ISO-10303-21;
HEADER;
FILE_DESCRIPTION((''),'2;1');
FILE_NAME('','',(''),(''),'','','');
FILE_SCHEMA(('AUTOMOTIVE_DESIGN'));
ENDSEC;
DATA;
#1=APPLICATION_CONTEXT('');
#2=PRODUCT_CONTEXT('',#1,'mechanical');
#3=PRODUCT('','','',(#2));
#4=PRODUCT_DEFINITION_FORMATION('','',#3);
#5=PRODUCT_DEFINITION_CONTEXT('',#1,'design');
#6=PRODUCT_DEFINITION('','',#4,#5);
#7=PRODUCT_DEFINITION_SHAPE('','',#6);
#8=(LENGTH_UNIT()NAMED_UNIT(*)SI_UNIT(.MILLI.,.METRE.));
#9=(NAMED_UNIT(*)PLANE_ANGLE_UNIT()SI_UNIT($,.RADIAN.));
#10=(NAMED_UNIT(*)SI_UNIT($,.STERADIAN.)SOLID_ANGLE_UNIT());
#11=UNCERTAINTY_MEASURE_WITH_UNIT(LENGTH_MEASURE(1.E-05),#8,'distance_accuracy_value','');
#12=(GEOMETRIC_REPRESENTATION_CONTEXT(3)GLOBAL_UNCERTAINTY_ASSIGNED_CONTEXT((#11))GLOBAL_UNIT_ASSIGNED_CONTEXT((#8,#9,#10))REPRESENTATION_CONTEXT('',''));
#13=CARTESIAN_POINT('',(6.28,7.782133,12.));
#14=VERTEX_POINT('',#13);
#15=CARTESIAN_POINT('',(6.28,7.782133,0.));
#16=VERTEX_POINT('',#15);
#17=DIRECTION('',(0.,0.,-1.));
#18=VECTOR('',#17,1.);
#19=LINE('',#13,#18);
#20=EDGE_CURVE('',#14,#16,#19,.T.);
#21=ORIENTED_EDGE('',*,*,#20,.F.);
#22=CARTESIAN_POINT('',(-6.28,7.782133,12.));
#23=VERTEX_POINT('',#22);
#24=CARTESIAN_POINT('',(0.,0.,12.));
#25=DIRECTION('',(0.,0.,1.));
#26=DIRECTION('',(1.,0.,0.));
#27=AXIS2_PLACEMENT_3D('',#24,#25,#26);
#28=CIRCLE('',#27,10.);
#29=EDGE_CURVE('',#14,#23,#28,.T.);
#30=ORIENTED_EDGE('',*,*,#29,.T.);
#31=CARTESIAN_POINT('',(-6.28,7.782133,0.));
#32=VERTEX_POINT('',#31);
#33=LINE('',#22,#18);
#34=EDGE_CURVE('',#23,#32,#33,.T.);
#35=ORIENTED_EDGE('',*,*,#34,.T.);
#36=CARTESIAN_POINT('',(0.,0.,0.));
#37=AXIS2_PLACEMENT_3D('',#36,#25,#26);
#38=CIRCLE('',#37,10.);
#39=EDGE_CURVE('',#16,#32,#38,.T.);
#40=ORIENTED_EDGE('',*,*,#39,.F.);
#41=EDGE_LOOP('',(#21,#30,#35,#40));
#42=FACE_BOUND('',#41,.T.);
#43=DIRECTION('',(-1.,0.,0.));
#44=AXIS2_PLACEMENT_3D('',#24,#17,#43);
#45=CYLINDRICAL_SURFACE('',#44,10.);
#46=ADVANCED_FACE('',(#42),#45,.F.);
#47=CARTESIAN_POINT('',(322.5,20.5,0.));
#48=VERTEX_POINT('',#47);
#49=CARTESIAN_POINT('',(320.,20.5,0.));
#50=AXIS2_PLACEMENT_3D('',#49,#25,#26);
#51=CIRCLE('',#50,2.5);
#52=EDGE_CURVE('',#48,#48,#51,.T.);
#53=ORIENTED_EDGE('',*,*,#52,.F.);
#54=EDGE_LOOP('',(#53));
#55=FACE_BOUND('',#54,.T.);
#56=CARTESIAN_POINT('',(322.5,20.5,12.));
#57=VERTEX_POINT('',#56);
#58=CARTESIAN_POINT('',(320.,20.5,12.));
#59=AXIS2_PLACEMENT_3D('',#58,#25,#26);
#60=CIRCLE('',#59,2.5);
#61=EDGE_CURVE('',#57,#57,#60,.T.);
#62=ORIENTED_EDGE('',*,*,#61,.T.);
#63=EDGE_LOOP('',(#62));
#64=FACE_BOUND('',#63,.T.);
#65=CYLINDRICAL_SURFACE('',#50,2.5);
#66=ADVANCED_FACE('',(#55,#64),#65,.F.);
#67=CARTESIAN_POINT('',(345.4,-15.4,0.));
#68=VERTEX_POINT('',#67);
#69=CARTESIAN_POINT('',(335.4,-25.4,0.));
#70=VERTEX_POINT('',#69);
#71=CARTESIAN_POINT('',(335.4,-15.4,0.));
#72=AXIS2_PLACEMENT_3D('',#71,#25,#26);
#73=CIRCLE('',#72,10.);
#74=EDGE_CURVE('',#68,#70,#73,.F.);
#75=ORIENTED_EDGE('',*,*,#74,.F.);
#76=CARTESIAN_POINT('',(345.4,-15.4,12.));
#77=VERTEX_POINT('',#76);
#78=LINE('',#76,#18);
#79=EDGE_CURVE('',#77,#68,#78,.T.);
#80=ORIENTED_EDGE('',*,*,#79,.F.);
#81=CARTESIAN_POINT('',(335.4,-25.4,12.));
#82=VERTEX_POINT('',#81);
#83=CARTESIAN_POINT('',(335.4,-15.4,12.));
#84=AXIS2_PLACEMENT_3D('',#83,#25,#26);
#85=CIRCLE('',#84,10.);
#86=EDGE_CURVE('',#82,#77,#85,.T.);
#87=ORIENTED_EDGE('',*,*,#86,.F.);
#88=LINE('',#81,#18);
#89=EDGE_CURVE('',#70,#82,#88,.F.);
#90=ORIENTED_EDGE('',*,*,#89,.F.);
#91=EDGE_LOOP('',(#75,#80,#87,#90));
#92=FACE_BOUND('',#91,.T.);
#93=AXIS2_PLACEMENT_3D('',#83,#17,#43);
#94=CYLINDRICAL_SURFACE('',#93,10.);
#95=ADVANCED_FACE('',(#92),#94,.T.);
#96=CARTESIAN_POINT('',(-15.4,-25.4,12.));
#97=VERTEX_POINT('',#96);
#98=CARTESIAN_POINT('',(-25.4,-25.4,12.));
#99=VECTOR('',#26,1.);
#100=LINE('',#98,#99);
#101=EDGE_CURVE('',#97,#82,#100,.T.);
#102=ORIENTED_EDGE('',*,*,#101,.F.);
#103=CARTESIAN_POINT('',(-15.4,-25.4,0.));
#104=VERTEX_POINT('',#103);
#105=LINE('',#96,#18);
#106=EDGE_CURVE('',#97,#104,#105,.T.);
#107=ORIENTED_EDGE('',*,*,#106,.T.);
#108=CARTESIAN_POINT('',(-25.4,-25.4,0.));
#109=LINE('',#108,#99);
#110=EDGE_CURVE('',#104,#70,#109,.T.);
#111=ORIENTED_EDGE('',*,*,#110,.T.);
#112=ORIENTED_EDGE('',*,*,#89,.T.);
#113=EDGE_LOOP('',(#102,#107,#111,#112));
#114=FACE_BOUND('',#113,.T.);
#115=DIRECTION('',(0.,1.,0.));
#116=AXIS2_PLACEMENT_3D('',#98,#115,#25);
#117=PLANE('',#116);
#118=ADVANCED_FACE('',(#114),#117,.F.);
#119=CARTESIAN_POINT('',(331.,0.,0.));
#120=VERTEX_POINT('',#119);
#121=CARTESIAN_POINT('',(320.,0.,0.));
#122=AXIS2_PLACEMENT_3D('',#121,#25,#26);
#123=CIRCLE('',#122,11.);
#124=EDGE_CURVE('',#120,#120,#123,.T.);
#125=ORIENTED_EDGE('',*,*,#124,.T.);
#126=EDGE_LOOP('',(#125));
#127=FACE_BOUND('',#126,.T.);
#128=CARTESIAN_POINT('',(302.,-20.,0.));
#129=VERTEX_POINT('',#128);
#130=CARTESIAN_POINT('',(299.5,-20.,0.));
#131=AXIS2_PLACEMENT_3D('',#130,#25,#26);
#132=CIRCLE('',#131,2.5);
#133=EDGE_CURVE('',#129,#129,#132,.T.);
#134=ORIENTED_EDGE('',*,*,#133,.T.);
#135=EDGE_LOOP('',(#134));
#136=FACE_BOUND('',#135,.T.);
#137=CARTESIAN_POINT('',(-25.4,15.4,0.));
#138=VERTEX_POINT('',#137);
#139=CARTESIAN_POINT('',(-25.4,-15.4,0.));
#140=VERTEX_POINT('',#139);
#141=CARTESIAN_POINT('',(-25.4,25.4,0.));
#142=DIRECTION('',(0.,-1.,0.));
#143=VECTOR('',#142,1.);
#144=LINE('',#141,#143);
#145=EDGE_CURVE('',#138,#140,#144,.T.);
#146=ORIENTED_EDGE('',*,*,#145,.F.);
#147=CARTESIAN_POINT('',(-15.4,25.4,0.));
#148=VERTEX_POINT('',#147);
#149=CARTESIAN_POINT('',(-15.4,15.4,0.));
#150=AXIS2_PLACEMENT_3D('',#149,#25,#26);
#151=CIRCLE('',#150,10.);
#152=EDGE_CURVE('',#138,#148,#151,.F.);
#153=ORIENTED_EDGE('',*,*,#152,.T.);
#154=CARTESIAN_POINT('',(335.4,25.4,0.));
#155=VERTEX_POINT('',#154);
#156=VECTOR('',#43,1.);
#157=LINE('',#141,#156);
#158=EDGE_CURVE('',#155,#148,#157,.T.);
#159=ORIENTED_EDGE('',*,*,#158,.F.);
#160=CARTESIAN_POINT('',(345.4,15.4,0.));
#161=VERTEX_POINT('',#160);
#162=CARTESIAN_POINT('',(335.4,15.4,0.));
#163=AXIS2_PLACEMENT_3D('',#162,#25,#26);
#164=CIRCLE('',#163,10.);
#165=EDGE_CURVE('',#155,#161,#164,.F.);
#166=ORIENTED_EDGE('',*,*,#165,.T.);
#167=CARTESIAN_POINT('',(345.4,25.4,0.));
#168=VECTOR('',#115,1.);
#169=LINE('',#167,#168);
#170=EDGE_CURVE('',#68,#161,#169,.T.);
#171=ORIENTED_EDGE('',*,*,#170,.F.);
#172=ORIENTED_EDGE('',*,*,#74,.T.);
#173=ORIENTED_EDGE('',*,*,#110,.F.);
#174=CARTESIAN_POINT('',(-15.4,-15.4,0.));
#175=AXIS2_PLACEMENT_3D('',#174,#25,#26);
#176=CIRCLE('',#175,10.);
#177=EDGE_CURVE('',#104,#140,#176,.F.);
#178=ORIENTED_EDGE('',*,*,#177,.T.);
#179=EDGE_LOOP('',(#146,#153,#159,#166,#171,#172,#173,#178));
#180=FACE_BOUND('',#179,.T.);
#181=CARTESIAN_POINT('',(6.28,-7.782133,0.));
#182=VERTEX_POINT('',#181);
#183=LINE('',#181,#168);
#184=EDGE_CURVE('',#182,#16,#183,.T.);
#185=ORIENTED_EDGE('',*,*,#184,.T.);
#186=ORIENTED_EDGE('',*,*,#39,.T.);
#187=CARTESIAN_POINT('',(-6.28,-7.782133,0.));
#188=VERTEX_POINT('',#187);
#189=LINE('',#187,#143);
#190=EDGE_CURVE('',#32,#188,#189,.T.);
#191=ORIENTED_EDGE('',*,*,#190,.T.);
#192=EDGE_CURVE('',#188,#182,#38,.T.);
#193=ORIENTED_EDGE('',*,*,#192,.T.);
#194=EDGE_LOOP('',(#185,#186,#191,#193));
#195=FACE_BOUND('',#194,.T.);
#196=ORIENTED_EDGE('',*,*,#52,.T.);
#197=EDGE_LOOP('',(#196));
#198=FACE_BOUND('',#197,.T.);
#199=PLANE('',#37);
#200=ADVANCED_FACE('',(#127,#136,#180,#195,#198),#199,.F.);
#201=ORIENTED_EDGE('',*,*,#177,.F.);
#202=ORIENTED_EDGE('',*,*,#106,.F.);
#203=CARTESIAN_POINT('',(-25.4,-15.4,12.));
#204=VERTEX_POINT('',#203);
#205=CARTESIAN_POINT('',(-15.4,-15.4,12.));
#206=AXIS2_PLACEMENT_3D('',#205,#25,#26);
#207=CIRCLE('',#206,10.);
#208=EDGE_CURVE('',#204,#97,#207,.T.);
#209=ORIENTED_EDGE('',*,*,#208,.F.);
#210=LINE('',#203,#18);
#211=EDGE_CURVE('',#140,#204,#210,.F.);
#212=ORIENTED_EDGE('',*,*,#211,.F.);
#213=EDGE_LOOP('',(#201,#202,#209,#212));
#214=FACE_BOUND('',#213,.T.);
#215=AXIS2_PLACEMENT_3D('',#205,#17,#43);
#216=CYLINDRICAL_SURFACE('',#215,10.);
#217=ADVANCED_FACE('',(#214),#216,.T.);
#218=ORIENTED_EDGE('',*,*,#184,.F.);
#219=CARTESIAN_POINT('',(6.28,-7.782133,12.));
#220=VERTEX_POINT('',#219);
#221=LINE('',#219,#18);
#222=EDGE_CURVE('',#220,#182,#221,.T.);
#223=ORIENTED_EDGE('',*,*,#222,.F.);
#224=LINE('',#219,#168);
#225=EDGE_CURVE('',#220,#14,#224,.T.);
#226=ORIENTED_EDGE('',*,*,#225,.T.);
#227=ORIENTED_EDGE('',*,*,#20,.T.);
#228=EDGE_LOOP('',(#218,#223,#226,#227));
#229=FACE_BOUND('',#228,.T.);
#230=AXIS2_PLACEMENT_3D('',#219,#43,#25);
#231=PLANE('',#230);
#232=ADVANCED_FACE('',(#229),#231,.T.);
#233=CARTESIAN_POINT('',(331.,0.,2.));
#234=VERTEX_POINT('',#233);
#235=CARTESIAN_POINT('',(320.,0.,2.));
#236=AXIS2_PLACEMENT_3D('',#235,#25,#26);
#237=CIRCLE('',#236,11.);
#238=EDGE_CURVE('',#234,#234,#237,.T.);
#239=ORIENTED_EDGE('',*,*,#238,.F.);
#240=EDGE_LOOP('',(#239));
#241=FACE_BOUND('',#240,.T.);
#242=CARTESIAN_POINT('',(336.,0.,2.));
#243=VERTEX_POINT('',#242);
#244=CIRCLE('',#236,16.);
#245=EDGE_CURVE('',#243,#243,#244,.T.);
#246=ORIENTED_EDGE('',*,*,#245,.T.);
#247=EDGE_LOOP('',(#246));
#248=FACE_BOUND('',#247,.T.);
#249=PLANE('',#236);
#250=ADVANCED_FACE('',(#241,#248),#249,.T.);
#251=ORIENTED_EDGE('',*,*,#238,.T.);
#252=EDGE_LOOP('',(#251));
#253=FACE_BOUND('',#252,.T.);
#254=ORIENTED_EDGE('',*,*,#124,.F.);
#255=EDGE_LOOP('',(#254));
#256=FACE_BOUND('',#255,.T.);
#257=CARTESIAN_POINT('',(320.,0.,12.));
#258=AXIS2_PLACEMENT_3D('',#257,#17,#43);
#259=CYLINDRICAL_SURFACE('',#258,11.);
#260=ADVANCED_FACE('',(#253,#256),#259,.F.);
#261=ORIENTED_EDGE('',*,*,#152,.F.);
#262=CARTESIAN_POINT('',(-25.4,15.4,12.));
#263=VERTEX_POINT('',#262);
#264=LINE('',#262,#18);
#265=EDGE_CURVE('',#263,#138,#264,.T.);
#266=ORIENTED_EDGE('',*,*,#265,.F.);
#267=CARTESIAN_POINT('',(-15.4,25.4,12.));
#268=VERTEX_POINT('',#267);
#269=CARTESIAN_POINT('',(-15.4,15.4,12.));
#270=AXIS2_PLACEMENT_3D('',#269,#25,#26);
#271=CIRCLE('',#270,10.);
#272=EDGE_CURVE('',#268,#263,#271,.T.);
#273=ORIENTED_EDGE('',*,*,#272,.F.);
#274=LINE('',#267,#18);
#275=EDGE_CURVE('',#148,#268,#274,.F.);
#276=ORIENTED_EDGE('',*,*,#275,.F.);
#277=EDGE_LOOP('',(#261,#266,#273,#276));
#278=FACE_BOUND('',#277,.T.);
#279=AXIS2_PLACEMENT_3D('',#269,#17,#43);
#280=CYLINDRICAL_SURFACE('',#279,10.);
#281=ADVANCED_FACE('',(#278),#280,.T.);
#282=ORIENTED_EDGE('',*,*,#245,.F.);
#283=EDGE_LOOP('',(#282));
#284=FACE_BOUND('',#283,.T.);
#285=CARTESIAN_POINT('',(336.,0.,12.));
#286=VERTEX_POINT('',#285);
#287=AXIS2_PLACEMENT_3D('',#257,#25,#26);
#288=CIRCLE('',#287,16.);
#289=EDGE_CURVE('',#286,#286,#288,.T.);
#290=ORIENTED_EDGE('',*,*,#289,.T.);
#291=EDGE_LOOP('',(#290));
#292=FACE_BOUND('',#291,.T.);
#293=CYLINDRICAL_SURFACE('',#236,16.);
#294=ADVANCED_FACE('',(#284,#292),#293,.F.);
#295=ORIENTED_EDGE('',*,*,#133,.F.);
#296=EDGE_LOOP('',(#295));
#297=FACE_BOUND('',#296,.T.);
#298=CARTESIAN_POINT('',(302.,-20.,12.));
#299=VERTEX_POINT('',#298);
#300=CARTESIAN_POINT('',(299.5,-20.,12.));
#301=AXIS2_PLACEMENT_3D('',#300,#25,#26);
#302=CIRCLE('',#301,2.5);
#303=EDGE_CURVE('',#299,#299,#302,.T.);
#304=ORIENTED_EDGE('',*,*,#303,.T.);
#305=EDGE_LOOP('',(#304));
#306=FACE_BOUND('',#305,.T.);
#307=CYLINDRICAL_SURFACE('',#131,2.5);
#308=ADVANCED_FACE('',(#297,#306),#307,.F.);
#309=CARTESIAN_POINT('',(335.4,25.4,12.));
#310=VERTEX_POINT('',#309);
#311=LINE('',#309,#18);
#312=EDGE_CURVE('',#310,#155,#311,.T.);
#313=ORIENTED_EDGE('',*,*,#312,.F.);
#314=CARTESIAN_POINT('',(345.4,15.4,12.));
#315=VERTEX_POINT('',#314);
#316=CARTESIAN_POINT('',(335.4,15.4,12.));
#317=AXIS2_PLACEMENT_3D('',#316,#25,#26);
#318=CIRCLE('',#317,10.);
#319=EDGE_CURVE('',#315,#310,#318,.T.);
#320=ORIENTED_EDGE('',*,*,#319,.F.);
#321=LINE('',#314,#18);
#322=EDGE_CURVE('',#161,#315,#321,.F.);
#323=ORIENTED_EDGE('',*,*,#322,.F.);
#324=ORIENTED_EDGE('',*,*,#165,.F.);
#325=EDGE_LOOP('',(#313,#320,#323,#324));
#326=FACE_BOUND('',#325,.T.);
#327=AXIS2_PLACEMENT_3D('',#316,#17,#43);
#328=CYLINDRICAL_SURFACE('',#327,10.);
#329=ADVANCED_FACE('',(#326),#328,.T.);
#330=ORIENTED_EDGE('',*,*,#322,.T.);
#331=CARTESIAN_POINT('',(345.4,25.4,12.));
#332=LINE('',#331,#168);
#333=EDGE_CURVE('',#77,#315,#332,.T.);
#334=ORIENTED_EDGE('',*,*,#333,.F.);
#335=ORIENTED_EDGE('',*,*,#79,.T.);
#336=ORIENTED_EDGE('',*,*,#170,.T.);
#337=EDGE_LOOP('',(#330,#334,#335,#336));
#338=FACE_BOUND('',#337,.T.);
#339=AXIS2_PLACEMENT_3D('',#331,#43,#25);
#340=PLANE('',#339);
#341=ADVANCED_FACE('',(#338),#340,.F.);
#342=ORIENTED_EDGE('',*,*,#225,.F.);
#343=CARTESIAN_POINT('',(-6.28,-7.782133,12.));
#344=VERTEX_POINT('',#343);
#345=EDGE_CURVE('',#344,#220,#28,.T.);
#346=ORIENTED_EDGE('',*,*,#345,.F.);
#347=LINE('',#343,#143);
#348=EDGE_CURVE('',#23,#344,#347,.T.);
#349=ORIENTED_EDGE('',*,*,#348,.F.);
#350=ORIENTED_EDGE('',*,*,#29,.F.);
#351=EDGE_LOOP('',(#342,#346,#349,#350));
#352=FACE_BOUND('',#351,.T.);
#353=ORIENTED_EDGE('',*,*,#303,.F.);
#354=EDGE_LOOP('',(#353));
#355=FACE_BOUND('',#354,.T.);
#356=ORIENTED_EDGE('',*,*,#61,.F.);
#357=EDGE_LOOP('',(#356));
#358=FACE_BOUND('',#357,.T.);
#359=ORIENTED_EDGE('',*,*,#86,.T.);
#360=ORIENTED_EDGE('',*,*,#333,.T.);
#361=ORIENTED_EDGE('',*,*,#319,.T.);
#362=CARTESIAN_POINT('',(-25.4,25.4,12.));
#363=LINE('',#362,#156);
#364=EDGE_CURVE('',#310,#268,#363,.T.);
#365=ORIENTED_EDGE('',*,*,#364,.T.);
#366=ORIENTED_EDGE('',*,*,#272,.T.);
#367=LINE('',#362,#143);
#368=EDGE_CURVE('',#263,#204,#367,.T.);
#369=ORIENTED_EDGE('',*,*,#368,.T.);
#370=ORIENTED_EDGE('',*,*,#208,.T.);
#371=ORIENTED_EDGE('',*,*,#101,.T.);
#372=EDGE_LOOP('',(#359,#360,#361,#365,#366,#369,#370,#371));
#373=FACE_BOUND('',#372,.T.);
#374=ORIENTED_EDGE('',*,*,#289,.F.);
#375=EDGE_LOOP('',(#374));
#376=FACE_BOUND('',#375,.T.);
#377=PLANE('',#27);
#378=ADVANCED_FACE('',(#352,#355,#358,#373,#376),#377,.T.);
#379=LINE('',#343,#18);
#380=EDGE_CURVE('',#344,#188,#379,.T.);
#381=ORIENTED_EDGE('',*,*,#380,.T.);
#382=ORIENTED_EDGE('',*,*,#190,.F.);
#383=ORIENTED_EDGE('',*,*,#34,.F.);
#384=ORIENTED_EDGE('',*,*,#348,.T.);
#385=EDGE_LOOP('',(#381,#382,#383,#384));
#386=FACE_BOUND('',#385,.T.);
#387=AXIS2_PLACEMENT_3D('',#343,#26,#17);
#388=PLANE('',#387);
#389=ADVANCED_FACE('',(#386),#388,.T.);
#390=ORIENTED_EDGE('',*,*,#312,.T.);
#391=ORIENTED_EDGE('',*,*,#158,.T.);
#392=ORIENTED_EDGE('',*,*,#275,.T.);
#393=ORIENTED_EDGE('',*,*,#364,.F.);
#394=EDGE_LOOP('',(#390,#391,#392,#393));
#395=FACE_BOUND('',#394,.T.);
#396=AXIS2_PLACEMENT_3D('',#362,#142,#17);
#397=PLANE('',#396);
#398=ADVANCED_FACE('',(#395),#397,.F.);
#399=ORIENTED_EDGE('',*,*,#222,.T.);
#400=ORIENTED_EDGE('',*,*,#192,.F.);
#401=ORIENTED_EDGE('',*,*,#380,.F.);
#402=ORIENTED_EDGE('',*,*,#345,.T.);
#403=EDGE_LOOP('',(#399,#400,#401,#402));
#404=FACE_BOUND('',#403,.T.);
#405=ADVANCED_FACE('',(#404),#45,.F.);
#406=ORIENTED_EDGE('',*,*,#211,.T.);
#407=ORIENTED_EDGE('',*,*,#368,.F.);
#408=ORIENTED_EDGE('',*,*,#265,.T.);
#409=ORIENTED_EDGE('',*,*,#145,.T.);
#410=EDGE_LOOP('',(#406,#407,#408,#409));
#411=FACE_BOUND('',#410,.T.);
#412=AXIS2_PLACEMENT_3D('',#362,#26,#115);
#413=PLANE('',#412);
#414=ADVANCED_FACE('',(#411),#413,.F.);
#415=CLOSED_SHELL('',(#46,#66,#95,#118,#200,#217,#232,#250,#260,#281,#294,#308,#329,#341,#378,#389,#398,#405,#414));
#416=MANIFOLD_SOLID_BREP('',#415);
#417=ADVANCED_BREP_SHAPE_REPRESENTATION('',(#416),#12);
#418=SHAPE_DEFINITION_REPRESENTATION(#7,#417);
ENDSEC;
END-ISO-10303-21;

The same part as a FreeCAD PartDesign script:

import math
import FreeCAD as App
import Part
import Sketcher
Q = App.Units.Quantity


def edges_at(feature, points):
    """Names of the edges that pass closest to the given points."""
    edges = feature.Shape.Edges
    near = lambda p: min(range(len(edges)), key=lambda i: edges[i].distToShape(Part.Vertex(*p))[0])
    return sorted({f"Edge{near(p) + 1}" for p in points})

doc = App.newDocument("Part")
params = doc.addObject("Spreadsheet::Sheet", "Params")
for row, (alias, value) in enumerate([
    ("sketch1_diameter", "22 mm"),
    ("sketch1_radius", "10 mm"),
    ("sketch1_width", "370.8 mm"),
    ("sketch1_height", "50.8 mm"),
    ("pad1_length", "12 mm"),
    ("fillet_radius", "10 mm"),
    ("sketch2_diameter", "32 mm"),
    ("pocket1_length", "10 mm"),
    ("sketch3_diameter", "5 mm"),
], start=1):
    params.set(f"A{row}", alias)
    params.set(f"B{row}", "=" + value)
    params.setAlias(f"B{row}", alias)

body = doc.addObject("PartDesign::Body", "Body")

# Sketch on XY plane
sketch1 = body.newObject("Sketcher::SketchObject", "Sketch")
sketch1.AttachmentSupport = (doc.getObject("XY_Plane"), [""])
sketch1.MapMode = "FlatFace"
sketch1.addGeometry([
    Part.LineSegment(App.Vector(-25, 25, 0), App.Vector(-25, -25, 0)),  # 0
    Part.LineSegment(App.Vector(-25, -25, 0), App.Vector(345, -25, 0)),  # 1
    Part.LineSegment(App.Vector(345, -25, 0), App.Vector(345, 25, 0)),  # 2
    Part.LineSegment(App.Vector(345, 25, 0), App.Vector(-25, 25, 0)),  # 3
    Part.ArcOfCircle(Part.Circle(App.Vector(0, 0, 0), App.Vector(0, 0, 1), 10), math.radians(-129), math.radians(-51)),  # 4
    Part.LineSegment(App.Vector(-6, -8, 0), App.Vector(-6, 8, 0)),  # 5
    Part.ArcOfCircle(Part.Circle(App.Vector(0, 0, 0), App.Vector(0, 0, 1), 10), math.radians(51), math.radians(129)),  # 6
    Part.LineSegment(App.Vector(6, 8, 0), App.Vector(6, -8, 0)),  # 7
    Part.Circle(App.Vector(320, 0, 0), App.Vector(0, 0, 1), 11),  # 8
], False)
sketch1.addConstraint([
    Sketcher.Constraint("Coincident", 0, 2, 1, 1),
    Sketcher.Constraint("Coincident", 1, 2, 2, 1),
    Sketcher.Constraint("Coincident", 2, 2, 3, 1),
    Sketcher.Constraint("Coincident", 3, 2, 0, 1),
    Sketcher.Constraint("Coincident", 4, 1, 5, 1),
    Sketcher.Constraint("Coincident", 5, 2, 6, 2),
    Sketcher.Constraint("Coincident", 6, 1, 7, 1),
    Sketcher.Constraint("Coincident", 7, 2, 4, 2),
    Sketcher.Constraint("Vertical", 0),
    Sketcher.Constraint("Horizontal", 1),
    Sketcher.Constraint("Vertical", 2),
    Sketcher.Constraint("Horizontal", 3),
    Sketcher.Constraint("Vertical", 5),
    Sketcher.Constraint("Vertical", 7),
    Sketcher.Constraint("Coincident", 4, 3, -1, 1),
    Sketcher.Constraint("Coincident", 6, 3, -1, 1),
    Sketcher.Constraint("Equal", 4, 6),
    Sketcher.Constraint("PointOnObject", 8, 3, -1),
    Sketcher.Constraint("Horizontal", 5, 2, 6, 1),
    Sketcher.Constraint("Diameter", 8, Q("22 mm")),
    Sketcher.Constraint("Radius", 4, Q("10 mm")),
    Sketcher.Constraint("DistanceX", 1, 1, 1, 2, Q("370.8 mm")),
    Sketcher.Constraint("DistanceY", 0, 2, 0, 1, Q("50.8 mm")),
    Sketcher.Constraint("DistanceX", -1, 1, 8, 3, Q("320 mm")),
    Sketcher.Constraint("DistanceX", 0, 2, -1, 1, Q("25.4 mm")),
    Sketcher.Constraint("DistanceY", 0, 2, -1, 1, Q("25.4 mm")),
    Sketcher.Constraint("DistanceX", 4, 1, -1, 1, Q("6.28 mm")),
])
sketch1.setExpression("Constraints[19]", "Params.sketch1_diameter")
sketch1.setExpression("Constraints[20]", "Params.sketch1_radius")
sketch1.setExpression("Constraints[21]", "Params.sketch1_width")
sketch1.setExpression("Constraints[22]", "Params.sketch1_height")
pad1 = body.newObject("PartDesign::Pad", "Pad")
pad1.Profile = sketch1
pad1.setExpression("Length", "Params.pad1_length")
doc.recompute()

fillet = body.newObject("PartDesign::Fillet", "Fillet")
fillet.Base = (pad1, edges_at(pad1, [
    (-25.4, 25.4, 6),
    (345.4, 25.4, 6),
    (345.4, -25.4, 6),
    (-25.4, -25.4, 6),
]))
fillet.setExpression("Radius", "Params.fillet_radius")

# Sketch on XY plane
sketch2 = body.newObject("Sketcher::SketchObject", "Sketch001")
sketch2.AttachmentSupport = (doc.getObject("XY_Plane"), [""])
sketch2.MapMode = "FlatFace"
sketch2.AttachmentOffset = App.Placement(App.Vector(0, 0, 12), App.Rotation())
sketch2.addGeometry(Part.Circle(App.Vector(320, 0, 0), App.Vector(0, 0, 1), 16), False)
sketch2.addConstraint([
    Sketcher.Constraint("PointOnObject", 0, 3, -1),
    Sketcher.Constraint("Diameter", 0, Q("32 mm")),
    Sketcher.Constraint("DistanceX", -1, 1, 0, 3, Q("320 mm")),
])
sketch2.setExpression("Constraints[1]", "Params.sketch2_diameter")
pocket1 = body.newObject("PartDesign::Pocket", "Pocket")
pocket1.Profile = sketch2
pocket1.setExpression("Length", "Params.pocket1_length")

# Sketch on XY plane
sketch3 = body.newObject("Sketcher::SketchObject", "Sketch002")
sketch3.AttachmentSupport = (doc.getObject("XY_Plane"), [""])
sketch3.MapMode = "FlatFace"
sketch3.AttachmentOffset = App.Placement(App.Vector(0, 0, 12), App.Rotation())
sketch3.addGeometry([
    Part.Circle(App.Vector(320, 20.5, 0), App.Vector(0, 0, 1), 2.5),
    Part.Circle(App.Vector(360.5, 0, 0), App.Vector(0, 0, 1), 2.5),
    Part.Circle(App.Vector(340, -40.5, 0), App.Vector(0, 0, 1), 2.5),
    Part.Circle(App.Vector(299.5, -20, 0), App.Vector(0, 0, 1), 2.5),
], False)
sketch3.addConstraint([
    Sketcher.Constraint("Equal", 0, 1),
    Sketcher.Constraint("Equal", 1, 2),
    Sketcher.Constraint("Equal", 2, 3),
    Sketcher.Constraint("PointOnObject", 1, 3, -1),
    Sketcher.Constraint("Diameter", 0, Q("5 mm")),
    Sketcher.Constraint("DistanceX", -1, 1, 0, 3, Q("320 mm")),
    Sketcher.Constraint("DistanceX", -1, 1, 2, 3, Q("340 mm")),
    Sketcher.Constraint("DistanceY", 3, 3, -1, 1, Q("20 mm")),
    Sketcher.Constraint("DistanceY", 2, 3, 0, 3, Q("61 mm")),
    Sketcher.Constraint("DistanceX", 3, 3, 1, 3, Q("61 mm")),
    Sketcher.Constraint("DistanceY", -1, 1, 0, 3, Q("20.5 mm")),
    Sketcher.Constraint("DistanceX", -1, 1, 1, 3, Q("360.5 mm")),
])
sketch3.setExpression("Constraints[4]", "Params.sketch3_diameter")
pocket2 = body.newObject("PartDesign::Pocket", "Pocket001")
pocket2.Profile = sketch3
pocket2.Type = "ThroughAll"

doc.recompute()
